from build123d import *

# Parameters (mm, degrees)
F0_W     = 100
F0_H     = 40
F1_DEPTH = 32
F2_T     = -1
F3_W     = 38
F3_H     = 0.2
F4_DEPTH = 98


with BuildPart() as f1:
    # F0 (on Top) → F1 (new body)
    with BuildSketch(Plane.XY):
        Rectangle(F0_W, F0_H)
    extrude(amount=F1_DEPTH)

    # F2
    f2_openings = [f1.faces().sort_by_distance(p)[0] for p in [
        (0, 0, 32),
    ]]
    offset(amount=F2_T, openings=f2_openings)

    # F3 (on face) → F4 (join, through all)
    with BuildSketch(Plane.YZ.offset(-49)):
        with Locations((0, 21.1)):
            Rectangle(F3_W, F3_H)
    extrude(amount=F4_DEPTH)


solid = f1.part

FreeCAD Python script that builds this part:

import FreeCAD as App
import Part
import Sketcher
Q = App.Units.Quantity


def faces_at(feature, points):
    """Names of the faces that lie closest to the given points."""
    faces = feature.Shape.Faces
    near = lambda p: min(range(len(faces)), key=lambda i: faces[i].distToShape(Part.Vertex(*p))[0])
    return sorted({f"Face{near(p) + 1}" for p in points})

doc = App.newDocument("Part")
body = doc.addObject("PartDesign::Body", "Body")

sketch1 = doc.addObject("Sketcher::SketchObject", "Sketch")
body.addObject(sketch1)
sketch1.AttachmentSupport = (doc.XY_Plane, [""])
sketch1.MapMode = "FlatFace"
sketch1.addGeometry(Part.LineSegment(App.Vector(-50, 20, 0), App.Vector(-50, -20, 0)), False)
sketch1.addGeometry(Part.LineSegment(App.Vector(-50, -20, 0), App.Vector(50, -20, 0)), False)
sketch1.addGeometry(Part.LineSegment(App.Vector(50, -20, 0), App.Vector(50, 20, 0)), False)
sketch1.addGeometry(Part.LineSegment(App.Vector(50, 20, 0), App.Vector(-50, 20, 0)), False)
sketch1.addConstraint(Sketcher.Constraint("Coincident", 0, 2, 1, 1))
sketch1.addConstraint(Sketcher.Constraint("Coincident", 1, 2, 2, 1))
sketch1.addConstraint(Sketcher.Constraint("Coincident", 2, 2, 3, 1))
sketch1.addConstraint(Sketcher.Constraint("Coincident", 3, 2, 0, 1))
sketch1.addConstraint(Sketcher.Constraint("Vertical", 0))
sketch1.addConstraint(Sketcher.Constraint("Horizontal", 1))
sketch1.addConstraint(Sketcher.Constraint("Vertical", 2))
sketch1.addConstraint(Sketcher.Constraint("Horizontal", 3))
sketch1.addConstraint(Sketcher.Constraint("Symmetric", 0, 2, 2, 2, -1, 1))
sketch1.addConstraint(Sketcher.Constraint("DistanceX", 1, 1, 1, 2, Q("100 mm")))
sketch1.addConstraint(Sketcher.Constraint("DistanceY", 0, 2, 0, 1, Q("40 mm")))
pad1 = doc.addObject("PartDesign::Pad", "Pad")
body.addObject(pad1)
pad1.Profile = sketch1
pad1.Length = 32
doc.recompute()

thickness = doc.addObject("PartDesign::Thickness", "Thickness")
body.addObject(thickness)
thickness.Base = (pad1, faces_at(pad1, [(0, 0, 32)]))
thickness.Value = 1
thickness.Reversed = True
thickness.Join = "Arc"

sketch2 = doc.addObject("Sketcher::SketchObject", "Sketch001")
body.addObject(sketch2)
sketch2.AttachmentSupport = (doc.YZ_Plane, [""])
sketch2.MapMode = "FlatFace"
sketch2.AttachmentOffset = App.Placement(App.Vector(0, 0, -49), App.Rotation())
sketch2.addGeometry(Part.LineSegment(App.Vector(-19, 21.2, 0), App.Vector(-19, 21, 0)), False)
sketch2.addGeometry(Part.LineSegment(App.Vector(-19, 21, 0), App.Vector(19, 21, 0)), False)
sketch2.addGeometry(Part.LineSegment(App.Vector(19, 21, 0), App.Vector(19, 21.2, 0)), False)
sketch2.addGeometry(Part.LineSegment(App.Vector(19, 21.2, 0), App.Vector(-19, 21.2, 0)), False)
sketch2.addConstraint(Sketcher.Constraint("Coincident", 0, 2, 1, 1))
sketch2.addConstraint(Sketcher.Constraint("Coincident", 1, 2, 2, 1))
sketch2.addConstraint(Sketcher.Constraint("Coincident", 2, 2, 3, 1))
sketch2.addConstraint(Sketcher.Constraint("Coincident", 3, 2, 0, 1))
sketch2.addConstraint(Sketcher.Constraint("Vertical", 0))
sketch2.addConstraint(Sketcher.Constraint("Horizontal", 1))
sketch2.addConstraint(Sketcher.Constraint("Vertical", 2))
sketch2.addConstraint(Sketcher.Constraint("Horizontal", 3))
sketch2.addConstraint(Sketcher.Constraint("DistanceX", 1, 1, 1, 2, Q("38 mm")))
sketch2.addConstraint(Sketcher.Constraint("DistanceY", 0, 2, 0, 1, Q("0.2 mm")))
sketch2.addConstraint(Sketcher.Constraint("DistanceX", 0, 2, -1, 1, Q("19 mm")))
sketch2.addConstraint(Sketcher.Constraint("DistanceY", -1, 1, 0, 2, Q("21 mm")))
pad2 = doc.addObject("PartDesign::Pad", "Pad001")
body.addObject(pad2)
pad2.Profile = sketch2
pad2.Type = "UpToLast"

doc.recompute()
